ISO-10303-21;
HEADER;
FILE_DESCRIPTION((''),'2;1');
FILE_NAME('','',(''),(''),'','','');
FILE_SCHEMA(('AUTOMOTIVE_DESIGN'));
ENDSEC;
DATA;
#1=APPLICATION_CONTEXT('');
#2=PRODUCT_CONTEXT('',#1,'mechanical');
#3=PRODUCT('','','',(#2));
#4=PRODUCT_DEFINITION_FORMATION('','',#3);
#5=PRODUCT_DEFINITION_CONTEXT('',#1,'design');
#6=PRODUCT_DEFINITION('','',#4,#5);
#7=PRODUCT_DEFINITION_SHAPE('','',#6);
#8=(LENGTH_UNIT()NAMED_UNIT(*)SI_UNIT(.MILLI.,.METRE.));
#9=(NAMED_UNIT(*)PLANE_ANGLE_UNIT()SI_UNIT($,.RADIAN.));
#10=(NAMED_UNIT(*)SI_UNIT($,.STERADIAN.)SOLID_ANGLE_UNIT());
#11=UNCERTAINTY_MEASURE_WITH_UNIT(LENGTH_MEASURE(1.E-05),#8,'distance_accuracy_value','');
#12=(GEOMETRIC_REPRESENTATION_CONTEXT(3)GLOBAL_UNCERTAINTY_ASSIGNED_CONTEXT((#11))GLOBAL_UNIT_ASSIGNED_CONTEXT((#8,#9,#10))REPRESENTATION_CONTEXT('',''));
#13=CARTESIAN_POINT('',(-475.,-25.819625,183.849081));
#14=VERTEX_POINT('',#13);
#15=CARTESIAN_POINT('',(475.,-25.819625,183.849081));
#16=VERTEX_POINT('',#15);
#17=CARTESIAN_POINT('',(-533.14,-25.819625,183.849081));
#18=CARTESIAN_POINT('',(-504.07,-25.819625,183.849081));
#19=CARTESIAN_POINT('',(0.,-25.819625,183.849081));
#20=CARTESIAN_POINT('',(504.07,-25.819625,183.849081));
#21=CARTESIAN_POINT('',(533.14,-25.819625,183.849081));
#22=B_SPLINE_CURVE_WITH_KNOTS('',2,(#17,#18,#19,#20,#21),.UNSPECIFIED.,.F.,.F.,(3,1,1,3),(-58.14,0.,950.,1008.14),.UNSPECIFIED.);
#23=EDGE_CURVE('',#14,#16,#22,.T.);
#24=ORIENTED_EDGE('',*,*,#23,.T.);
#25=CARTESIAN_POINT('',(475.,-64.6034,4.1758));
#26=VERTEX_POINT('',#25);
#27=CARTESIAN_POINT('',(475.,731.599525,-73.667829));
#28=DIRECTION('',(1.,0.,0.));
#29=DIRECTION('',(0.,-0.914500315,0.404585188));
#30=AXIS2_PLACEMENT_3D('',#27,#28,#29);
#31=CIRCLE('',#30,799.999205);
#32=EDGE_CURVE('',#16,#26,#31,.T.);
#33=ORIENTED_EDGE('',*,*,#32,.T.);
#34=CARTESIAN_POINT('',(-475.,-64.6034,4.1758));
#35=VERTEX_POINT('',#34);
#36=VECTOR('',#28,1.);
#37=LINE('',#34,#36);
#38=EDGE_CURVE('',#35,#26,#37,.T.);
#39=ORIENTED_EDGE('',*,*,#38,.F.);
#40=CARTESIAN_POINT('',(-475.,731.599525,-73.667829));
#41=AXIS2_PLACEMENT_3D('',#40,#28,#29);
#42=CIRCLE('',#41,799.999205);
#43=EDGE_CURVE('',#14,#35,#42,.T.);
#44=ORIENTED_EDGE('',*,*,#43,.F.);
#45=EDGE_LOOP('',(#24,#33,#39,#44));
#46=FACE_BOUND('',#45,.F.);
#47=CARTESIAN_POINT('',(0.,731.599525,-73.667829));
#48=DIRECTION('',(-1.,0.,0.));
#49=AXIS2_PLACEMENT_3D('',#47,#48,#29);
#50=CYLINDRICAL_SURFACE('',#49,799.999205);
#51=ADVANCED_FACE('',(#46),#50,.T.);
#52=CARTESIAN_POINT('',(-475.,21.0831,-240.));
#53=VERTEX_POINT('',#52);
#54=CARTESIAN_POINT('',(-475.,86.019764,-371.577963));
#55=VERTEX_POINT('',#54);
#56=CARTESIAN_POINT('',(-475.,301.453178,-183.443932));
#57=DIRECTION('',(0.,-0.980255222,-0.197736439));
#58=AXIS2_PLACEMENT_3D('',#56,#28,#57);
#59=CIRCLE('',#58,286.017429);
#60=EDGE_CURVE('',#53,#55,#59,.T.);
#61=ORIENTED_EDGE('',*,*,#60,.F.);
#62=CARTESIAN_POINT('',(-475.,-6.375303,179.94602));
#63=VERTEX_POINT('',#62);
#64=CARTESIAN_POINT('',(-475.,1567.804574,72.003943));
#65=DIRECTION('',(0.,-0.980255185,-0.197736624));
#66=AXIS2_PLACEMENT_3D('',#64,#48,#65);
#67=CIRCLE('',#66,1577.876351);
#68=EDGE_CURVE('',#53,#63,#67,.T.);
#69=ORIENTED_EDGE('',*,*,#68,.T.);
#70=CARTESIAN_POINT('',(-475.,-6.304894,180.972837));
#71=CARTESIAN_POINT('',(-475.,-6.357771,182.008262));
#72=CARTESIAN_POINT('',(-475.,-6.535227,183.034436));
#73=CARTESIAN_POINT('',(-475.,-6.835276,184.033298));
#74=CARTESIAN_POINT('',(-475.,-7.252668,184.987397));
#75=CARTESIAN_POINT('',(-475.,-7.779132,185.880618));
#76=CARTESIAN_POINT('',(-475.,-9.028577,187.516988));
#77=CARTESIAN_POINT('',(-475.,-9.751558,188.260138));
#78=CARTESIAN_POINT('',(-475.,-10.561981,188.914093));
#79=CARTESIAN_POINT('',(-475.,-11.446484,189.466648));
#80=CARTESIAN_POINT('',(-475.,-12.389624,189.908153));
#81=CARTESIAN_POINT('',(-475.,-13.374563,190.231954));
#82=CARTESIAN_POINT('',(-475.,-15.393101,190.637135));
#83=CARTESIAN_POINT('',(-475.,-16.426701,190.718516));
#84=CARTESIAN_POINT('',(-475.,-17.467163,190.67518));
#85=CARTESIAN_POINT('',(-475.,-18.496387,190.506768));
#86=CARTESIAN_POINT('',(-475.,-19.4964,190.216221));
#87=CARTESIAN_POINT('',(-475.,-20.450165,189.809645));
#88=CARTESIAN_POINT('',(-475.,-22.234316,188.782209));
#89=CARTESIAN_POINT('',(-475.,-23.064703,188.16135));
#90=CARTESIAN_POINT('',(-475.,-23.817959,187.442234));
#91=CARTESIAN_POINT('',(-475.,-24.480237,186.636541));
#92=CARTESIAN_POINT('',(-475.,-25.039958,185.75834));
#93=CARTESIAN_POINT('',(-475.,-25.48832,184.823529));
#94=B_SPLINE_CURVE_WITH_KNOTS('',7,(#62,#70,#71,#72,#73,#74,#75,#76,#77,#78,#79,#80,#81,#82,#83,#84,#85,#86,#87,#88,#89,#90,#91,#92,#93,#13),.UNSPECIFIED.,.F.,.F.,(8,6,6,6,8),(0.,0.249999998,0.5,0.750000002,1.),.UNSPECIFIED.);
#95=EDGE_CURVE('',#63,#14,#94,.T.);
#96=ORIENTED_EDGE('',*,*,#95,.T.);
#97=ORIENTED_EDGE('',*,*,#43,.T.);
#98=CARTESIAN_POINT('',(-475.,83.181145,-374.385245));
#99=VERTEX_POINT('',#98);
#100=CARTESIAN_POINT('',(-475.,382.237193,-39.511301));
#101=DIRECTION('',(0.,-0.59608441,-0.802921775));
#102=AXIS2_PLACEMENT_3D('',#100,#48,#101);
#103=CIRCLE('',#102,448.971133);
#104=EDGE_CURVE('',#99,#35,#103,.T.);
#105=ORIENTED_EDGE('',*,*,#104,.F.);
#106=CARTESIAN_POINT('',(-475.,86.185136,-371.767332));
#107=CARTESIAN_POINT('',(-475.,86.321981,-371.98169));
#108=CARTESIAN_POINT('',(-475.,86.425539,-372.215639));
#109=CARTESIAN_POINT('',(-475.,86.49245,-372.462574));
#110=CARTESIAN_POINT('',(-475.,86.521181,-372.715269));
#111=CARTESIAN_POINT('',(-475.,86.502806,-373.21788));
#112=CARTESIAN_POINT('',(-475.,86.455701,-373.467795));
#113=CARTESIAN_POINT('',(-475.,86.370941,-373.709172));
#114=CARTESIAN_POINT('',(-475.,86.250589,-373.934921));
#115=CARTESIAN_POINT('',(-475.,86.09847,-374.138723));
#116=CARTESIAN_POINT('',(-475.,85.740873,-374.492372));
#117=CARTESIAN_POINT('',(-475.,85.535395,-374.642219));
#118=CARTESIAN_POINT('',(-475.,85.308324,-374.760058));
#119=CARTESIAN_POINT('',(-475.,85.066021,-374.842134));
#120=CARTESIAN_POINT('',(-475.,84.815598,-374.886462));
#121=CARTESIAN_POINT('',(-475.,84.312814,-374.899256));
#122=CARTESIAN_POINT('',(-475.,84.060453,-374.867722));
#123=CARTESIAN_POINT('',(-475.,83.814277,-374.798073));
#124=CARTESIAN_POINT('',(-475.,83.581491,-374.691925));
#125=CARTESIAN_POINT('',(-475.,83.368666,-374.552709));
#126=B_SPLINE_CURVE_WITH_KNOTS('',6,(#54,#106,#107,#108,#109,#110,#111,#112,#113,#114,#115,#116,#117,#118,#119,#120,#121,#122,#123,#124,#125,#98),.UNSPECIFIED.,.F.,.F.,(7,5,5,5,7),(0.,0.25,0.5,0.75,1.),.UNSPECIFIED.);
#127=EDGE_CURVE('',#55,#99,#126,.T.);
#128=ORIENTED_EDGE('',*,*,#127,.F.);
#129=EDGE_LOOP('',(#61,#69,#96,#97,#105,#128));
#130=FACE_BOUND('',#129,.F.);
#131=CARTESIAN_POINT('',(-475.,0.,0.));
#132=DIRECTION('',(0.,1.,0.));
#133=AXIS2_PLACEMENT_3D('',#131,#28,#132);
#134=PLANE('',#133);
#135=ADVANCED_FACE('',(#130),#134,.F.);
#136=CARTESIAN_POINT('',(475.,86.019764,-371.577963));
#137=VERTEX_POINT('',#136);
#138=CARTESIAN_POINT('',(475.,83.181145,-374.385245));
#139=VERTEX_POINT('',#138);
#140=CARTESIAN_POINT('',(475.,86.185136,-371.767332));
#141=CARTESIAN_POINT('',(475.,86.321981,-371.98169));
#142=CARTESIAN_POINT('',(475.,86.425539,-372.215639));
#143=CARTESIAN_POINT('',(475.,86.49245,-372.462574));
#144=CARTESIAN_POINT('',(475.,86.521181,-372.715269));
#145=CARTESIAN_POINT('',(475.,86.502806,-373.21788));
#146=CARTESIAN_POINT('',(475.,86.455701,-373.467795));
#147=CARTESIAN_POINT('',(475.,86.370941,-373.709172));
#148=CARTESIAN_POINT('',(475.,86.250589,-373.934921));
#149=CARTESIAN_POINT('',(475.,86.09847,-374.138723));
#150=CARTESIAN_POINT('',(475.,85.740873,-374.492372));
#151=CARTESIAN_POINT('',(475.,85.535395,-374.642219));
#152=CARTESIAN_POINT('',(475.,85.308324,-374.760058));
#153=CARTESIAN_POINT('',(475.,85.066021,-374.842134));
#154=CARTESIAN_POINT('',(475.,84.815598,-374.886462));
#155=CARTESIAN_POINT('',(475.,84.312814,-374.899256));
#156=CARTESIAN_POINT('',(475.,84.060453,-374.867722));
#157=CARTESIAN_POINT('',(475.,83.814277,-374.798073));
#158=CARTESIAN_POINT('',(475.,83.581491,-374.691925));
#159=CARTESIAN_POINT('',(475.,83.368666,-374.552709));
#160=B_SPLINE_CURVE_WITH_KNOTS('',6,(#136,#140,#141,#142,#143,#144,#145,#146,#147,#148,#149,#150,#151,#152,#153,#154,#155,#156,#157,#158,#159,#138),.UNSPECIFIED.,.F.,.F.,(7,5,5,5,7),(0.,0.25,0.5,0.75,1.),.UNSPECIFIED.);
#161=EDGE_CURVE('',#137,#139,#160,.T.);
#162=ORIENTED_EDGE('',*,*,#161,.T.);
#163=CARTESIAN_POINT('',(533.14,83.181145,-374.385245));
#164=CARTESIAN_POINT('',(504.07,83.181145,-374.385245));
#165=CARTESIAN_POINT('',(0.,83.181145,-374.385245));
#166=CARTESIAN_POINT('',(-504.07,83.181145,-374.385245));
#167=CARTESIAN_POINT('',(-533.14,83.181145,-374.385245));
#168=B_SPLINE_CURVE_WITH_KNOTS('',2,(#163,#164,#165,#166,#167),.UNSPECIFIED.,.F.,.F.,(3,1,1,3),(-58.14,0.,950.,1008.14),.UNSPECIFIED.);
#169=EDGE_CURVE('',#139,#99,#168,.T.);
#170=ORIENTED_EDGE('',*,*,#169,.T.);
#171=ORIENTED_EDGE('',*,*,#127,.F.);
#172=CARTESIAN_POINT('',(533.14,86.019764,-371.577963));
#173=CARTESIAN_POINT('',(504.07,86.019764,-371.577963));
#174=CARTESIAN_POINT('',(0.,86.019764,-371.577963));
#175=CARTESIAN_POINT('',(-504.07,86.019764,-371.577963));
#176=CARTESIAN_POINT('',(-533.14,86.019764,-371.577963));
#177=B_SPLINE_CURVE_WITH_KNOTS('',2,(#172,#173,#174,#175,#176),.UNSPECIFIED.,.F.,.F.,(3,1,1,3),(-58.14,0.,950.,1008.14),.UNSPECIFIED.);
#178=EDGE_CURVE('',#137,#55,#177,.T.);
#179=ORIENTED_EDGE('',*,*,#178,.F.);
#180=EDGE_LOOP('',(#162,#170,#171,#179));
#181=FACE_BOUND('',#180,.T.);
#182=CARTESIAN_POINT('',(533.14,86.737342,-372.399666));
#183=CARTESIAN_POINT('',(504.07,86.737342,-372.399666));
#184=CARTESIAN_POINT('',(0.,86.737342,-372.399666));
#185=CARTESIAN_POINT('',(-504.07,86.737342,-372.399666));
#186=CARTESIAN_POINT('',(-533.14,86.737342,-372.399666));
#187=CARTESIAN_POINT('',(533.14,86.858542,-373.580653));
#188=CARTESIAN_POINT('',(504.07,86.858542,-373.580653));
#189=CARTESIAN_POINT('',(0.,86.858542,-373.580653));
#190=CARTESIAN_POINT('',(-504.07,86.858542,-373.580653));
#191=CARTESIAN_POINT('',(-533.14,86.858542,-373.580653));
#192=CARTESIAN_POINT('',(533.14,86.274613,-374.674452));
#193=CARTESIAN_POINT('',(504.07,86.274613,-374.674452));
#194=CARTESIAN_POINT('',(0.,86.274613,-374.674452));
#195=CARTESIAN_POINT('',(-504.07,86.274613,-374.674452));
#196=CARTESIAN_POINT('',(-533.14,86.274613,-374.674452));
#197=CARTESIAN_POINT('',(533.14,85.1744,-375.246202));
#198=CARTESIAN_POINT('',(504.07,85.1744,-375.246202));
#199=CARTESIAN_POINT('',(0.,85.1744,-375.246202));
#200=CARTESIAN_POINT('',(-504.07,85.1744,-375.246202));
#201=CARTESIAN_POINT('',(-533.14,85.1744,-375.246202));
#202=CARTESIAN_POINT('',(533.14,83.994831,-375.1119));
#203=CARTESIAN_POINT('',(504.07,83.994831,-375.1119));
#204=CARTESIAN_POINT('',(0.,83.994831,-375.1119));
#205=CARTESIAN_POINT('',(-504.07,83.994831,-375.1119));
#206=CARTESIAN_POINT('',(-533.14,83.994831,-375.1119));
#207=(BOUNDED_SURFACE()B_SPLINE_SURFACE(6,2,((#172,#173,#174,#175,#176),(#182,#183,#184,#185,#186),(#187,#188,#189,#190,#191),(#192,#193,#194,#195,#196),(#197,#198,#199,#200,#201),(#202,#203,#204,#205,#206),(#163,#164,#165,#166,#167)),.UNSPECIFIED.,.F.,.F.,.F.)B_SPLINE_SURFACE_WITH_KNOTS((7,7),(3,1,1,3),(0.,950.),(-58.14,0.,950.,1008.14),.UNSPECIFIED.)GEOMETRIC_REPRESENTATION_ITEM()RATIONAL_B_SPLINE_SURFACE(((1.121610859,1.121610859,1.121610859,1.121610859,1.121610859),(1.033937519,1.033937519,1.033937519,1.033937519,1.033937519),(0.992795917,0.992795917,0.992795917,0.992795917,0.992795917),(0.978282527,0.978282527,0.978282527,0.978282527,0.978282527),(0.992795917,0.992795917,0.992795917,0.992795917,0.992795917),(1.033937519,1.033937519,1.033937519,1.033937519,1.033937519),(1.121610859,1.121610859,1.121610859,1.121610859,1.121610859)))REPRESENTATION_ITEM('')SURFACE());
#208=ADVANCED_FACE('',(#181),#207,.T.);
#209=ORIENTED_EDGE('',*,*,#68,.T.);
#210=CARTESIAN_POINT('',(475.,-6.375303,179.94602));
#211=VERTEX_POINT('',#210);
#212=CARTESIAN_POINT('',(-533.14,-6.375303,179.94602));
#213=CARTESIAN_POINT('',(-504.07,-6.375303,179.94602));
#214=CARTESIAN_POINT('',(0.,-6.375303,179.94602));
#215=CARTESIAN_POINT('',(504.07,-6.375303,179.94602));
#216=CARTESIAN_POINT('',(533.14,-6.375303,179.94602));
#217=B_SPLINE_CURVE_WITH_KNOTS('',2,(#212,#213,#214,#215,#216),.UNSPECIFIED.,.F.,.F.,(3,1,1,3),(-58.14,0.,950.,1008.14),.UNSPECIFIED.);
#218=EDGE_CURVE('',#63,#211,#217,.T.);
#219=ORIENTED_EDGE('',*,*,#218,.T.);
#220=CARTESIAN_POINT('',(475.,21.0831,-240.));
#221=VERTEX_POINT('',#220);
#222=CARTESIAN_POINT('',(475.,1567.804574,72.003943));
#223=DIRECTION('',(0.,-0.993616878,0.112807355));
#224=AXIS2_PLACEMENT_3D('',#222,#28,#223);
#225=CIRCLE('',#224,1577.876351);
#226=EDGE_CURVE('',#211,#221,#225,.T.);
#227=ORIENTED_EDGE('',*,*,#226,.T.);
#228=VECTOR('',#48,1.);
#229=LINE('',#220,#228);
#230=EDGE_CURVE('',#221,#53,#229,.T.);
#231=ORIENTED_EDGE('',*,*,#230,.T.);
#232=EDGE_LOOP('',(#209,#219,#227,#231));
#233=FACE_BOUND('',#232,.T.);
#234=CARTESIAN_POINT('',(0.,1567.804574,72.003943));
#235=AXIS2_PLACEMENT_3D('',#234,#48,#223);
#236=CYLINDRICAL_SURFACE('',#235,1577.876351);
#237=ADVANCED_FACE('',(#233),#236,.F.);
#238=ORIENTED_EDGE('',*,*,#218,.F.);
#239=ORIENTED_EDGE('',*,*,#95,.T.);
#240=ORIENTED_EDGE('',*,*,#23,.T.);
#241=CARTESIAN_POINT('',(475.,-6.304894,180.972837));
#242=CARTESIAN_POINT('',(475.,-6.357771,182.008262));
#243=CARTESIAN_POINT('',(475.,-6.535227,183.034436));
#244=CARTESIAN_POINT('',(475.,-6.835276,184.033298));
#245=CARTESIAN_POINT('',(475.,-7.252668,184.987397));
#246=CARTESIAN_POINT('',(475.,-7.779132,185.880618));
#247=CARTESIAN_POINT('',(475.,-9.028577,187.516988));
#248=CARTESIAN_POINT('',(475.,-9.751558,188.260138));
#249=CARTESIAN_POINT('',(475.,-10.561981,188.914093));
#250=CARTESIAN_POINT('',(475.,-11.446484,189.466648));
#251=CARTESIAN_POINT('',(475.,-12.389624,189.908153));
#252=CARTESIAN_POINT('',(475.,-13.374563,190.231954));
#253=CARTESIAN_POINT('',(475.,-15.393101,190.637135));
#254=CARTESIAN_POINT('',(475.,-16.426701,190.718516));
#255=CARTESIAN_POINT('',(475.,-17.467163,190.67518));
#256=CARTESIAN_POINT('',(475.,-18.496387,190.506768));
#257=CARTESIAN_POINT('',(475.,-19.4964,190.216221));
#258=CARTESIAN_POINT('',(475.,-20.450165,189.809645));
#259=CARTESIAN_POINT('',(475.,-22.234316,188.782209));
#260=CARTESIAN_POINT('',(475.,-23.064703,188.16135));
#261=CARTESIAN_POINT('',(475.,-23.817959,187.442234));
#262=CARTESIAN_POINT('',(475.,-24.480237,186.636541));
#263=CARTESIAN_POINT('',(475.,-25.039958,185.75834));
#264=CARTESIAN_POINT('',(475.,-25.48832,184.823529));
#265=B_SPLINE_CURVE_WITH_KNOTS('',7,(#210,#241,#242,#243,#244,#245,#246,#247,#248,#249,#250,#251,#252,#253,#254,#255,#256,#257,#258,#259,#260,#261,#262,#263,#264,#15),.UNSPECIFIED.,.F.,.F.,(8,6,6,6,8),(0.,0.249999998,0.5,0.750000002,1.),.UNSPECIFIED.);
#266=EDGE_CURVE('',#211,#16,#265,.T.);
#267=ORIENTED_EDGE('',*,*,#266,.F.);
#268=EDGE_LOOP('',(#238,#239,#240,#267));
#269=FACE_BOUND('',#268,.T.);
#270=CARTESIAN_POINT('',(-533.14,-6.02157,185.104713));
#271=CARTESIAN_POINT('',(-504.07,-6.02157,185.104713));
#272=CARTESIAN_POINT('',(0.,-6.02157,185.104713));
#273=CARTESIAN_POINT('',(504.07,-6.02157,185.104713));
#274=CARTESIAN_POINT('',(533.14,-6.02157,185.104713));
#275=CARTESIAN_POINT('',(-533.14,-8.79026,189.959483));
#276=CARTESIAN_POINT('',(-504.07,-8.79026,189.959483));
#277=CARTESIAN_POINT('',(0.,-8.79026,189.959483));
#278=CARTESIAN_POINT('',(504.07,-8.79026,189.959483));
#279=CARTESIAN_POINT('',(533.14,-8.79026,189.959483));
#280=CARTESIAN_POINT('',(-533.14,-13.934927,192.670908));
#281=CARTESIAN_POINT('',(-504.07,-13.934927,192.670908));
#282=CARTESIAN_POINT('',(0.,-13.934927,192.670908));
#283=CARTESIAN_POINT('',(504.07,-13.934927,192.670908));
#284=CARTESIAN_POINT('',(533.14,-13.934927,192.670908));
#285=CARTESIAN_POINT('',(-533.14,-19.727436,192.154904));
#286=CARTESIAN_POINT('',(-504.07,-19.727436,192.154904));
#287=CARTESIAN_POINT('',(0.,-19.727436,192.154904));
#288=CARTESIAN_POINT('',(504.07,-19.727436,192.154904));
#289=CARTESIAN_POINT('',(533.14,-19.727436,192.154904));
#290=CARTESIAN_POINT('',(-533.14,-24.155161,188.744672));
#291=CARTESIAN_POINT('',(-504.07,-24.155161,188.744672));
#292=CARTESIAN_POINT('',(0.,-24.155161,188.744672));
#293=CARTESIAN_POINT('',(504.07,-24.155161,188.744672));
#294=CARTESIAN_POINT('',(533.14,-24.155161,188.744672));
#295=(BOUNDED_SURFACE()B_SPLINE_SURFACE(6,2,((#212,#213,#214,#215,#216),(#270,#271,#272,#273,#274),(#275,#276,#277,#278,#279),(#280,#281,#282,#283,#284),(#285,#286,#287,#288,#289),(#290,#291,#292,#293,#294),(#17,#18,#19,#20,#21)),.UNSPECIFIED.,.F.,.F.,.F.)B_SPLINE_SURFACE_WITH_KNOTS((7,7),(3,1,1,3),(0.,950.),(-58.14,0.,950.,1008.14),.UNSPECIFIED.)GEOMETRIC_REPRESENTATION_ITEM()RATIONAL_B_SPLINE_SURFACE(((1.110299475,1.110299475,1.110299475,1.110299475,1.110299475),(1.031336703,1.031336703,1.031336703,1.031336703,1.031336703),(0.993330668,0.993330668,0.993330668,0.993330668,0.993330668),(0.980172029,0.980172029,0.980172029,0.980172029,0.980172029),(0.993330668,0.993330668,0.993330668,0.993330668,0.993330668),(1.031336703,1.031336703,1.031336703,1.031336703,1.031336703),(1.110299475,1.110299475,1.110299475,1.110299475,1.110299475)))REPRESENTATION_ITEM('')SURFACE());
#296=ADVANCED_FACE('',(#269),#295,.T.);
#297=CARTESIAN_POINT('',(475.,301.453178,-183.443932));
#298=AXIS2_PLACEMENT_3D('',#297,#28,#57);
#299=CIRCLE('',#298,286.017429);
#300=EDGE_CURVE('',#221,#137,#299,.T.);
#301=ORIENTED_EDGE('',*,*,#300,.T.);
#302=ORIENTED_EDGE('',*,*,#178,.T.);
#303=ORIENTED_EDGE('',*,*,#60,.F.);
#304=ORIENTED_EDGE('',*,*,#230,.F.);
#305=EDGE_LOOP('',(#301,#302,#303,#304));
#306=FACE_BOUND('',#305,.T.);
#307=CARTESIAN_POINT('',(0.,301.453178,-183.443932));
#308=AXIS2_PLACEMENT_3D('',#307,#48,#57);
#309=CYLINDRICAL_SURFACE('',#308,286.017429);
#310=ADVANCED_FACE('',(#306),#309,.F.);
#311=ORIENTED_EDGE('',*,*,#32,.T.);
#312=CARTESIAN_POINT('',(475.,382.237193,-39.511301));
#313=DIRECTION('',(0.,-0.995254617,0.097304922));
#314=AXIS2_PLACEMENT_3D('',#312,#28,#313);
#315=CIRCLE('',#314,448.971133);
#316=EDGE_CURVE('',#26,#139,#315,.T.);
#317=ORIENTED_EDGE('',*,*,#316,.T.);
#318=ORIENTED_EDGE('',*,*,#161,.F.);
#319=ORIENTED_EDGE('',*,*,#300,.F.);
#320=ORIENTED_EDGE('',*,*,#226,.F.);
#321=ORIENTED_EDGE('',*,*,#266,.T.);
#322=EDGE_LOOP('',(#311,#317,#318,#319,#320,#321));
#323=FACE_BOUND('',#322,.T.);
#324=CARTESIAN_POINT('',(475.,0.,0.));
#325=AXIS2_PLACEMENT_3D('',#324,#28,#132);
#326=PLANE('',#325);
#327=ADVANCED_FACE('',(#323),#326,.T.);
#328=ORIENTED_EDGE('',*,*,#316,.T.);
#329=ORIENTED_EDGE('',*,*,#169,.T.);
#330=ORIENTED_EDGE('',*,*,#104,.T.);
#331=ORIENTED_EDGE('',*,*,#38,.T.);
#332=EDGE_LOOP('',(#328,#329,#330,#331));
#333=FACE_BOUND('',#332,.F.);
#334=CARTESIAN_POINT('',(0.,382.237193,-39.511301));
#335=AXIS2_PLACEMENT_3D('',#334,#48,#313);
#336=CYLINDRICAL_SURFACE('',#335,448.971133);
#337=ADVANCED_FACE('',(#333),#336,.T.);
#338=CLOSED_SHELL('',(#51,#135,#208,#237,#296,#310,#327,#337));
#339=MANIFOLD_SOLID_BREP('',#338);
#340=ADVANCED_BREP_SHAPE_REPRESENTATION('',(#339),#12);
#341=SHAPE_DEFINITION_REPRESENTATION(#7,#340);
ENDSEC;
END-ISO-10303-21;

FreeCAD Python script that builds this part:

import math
import FreeCAD as App
import Part
import Sketcher
from FreeCAD import Vector


def edges_at(feature, points):
    """Names of the edges that pass closest to the given points."""
    edges = feature.Shape.Edges
    near = lambda p: min(range(len(edges)), key=lambda i: edges[i].distToShape(Part.Vertex(*p))[0])
    return sorted({f"Edge{near(p) + 1}" for p in points})

doc = App.newDocument("Part")
body = doc.addObject("PartDesign::Body", "Body")

sketch1 = doc.addObject("Sketcher::SketchObject", "Sketch")
body.addObject(sketch1)
sketch1.AttachmentSupport = (doc.YZ_Plane, [""])
sketch1.MapMode = "FlatFace"
sketch1.addGeometry(Part.ArcOfCircle(Part.Circle(Vector(732, -74, 0), Vector(0, 0, 1), 800), math.radians(156.13), math.radians(174.42)), False)
sketch1.addGeometry(Part.ArcOfCircle(Part.Circle(Vector(382, -40, 0), Vector(0, 0, 1), 449), math.radians(174), math.radians(233)), False)
sketch1.addGeometry(Part.ArcOfCircle(Part.Circle(Vector(301, -183, 0), Vector(0, 0, 1), 286), math.radians(-169), math.radians(-131)), False)
sketch1.addGeometry(Part.ArcOfCircle(Part.Circle(Vector(1568, 72, 0), Vector(0, 0, 1), 1578), math.radians(173.52), math.radians(191.4)), False)
sketch1.addConstraint(Sketcher.Constraint("Tangent", 0, 2, 1, 1))
sketch1.addConstraint(Sketcher.Constraint("Coincident", 1, 2, 2, 2))
sketch1.addConstraint(Sketcher.Constraint("Tangent", 2, 1, 3, 2))
sketch1.addConstraint(Sketcher.Constraint("Coincident", 3, 1, 0, 1))
sketch1.addConstraint(Sketcher.Constraint("PointOnObject", 3, 1, -2))
sketch1.addConstraint(Sketcher.Constraint("Radius", 0, 800.0))
sketch1.addConstraint(Sketcher.Constraint("DistanceY", 1, 2, 2, 1, 160.0))
sketch1.addConstraint(Sketcher.Constraint("Radius", 2, 286.0172))
sketch1.addConstraint(Sketcher.Constraint("DistanceY", 1, 2, -1, 1, 400.0))
sketch1.addConstraint(Sketcher.Constraint("Radius", 1, 448.9711))
sketch1.addConstraint(Sketcher.Constraint("Radius", 3, 1577.8764))
sketch1.addConstraint(Sketcher.Constraint("DistanceY", 0, 3, -1, 1, 73.668))
sketch1.addConstraint(Sketcher.Constraint("DistanceX", -1, 1, 2, 3, 301.453))
sketch1.addConstraint(Sketcher.Constraint("DistanceY", 2, 3, -1, 1, 183.444))
pad1 = doc.addObject("PartDesign::Pad", "Pad")
body.addObject(pad1)
pad1.Profile = sketch1
pad1.Length = 950
pad1.Midplane = True
doc.recompute()

fillet = doc.addObject("PartDesign::Fillet", "Fillet")
body.addObject(fillet)
fillet.Base = (pad1, edges_at(pad1, [(0, 0, 250)]))
fillet.Radius = 10
doc.recompute()

fillet2 = doc.addObject("PartDesign::Fillet", "Fillet001")
body.addObject(fillet2)
fillet2.Base = (fillet, edges_at(fillet, [(0, 114.612, -400)]))
fillet2.Radius = 2

doc.recompute()
